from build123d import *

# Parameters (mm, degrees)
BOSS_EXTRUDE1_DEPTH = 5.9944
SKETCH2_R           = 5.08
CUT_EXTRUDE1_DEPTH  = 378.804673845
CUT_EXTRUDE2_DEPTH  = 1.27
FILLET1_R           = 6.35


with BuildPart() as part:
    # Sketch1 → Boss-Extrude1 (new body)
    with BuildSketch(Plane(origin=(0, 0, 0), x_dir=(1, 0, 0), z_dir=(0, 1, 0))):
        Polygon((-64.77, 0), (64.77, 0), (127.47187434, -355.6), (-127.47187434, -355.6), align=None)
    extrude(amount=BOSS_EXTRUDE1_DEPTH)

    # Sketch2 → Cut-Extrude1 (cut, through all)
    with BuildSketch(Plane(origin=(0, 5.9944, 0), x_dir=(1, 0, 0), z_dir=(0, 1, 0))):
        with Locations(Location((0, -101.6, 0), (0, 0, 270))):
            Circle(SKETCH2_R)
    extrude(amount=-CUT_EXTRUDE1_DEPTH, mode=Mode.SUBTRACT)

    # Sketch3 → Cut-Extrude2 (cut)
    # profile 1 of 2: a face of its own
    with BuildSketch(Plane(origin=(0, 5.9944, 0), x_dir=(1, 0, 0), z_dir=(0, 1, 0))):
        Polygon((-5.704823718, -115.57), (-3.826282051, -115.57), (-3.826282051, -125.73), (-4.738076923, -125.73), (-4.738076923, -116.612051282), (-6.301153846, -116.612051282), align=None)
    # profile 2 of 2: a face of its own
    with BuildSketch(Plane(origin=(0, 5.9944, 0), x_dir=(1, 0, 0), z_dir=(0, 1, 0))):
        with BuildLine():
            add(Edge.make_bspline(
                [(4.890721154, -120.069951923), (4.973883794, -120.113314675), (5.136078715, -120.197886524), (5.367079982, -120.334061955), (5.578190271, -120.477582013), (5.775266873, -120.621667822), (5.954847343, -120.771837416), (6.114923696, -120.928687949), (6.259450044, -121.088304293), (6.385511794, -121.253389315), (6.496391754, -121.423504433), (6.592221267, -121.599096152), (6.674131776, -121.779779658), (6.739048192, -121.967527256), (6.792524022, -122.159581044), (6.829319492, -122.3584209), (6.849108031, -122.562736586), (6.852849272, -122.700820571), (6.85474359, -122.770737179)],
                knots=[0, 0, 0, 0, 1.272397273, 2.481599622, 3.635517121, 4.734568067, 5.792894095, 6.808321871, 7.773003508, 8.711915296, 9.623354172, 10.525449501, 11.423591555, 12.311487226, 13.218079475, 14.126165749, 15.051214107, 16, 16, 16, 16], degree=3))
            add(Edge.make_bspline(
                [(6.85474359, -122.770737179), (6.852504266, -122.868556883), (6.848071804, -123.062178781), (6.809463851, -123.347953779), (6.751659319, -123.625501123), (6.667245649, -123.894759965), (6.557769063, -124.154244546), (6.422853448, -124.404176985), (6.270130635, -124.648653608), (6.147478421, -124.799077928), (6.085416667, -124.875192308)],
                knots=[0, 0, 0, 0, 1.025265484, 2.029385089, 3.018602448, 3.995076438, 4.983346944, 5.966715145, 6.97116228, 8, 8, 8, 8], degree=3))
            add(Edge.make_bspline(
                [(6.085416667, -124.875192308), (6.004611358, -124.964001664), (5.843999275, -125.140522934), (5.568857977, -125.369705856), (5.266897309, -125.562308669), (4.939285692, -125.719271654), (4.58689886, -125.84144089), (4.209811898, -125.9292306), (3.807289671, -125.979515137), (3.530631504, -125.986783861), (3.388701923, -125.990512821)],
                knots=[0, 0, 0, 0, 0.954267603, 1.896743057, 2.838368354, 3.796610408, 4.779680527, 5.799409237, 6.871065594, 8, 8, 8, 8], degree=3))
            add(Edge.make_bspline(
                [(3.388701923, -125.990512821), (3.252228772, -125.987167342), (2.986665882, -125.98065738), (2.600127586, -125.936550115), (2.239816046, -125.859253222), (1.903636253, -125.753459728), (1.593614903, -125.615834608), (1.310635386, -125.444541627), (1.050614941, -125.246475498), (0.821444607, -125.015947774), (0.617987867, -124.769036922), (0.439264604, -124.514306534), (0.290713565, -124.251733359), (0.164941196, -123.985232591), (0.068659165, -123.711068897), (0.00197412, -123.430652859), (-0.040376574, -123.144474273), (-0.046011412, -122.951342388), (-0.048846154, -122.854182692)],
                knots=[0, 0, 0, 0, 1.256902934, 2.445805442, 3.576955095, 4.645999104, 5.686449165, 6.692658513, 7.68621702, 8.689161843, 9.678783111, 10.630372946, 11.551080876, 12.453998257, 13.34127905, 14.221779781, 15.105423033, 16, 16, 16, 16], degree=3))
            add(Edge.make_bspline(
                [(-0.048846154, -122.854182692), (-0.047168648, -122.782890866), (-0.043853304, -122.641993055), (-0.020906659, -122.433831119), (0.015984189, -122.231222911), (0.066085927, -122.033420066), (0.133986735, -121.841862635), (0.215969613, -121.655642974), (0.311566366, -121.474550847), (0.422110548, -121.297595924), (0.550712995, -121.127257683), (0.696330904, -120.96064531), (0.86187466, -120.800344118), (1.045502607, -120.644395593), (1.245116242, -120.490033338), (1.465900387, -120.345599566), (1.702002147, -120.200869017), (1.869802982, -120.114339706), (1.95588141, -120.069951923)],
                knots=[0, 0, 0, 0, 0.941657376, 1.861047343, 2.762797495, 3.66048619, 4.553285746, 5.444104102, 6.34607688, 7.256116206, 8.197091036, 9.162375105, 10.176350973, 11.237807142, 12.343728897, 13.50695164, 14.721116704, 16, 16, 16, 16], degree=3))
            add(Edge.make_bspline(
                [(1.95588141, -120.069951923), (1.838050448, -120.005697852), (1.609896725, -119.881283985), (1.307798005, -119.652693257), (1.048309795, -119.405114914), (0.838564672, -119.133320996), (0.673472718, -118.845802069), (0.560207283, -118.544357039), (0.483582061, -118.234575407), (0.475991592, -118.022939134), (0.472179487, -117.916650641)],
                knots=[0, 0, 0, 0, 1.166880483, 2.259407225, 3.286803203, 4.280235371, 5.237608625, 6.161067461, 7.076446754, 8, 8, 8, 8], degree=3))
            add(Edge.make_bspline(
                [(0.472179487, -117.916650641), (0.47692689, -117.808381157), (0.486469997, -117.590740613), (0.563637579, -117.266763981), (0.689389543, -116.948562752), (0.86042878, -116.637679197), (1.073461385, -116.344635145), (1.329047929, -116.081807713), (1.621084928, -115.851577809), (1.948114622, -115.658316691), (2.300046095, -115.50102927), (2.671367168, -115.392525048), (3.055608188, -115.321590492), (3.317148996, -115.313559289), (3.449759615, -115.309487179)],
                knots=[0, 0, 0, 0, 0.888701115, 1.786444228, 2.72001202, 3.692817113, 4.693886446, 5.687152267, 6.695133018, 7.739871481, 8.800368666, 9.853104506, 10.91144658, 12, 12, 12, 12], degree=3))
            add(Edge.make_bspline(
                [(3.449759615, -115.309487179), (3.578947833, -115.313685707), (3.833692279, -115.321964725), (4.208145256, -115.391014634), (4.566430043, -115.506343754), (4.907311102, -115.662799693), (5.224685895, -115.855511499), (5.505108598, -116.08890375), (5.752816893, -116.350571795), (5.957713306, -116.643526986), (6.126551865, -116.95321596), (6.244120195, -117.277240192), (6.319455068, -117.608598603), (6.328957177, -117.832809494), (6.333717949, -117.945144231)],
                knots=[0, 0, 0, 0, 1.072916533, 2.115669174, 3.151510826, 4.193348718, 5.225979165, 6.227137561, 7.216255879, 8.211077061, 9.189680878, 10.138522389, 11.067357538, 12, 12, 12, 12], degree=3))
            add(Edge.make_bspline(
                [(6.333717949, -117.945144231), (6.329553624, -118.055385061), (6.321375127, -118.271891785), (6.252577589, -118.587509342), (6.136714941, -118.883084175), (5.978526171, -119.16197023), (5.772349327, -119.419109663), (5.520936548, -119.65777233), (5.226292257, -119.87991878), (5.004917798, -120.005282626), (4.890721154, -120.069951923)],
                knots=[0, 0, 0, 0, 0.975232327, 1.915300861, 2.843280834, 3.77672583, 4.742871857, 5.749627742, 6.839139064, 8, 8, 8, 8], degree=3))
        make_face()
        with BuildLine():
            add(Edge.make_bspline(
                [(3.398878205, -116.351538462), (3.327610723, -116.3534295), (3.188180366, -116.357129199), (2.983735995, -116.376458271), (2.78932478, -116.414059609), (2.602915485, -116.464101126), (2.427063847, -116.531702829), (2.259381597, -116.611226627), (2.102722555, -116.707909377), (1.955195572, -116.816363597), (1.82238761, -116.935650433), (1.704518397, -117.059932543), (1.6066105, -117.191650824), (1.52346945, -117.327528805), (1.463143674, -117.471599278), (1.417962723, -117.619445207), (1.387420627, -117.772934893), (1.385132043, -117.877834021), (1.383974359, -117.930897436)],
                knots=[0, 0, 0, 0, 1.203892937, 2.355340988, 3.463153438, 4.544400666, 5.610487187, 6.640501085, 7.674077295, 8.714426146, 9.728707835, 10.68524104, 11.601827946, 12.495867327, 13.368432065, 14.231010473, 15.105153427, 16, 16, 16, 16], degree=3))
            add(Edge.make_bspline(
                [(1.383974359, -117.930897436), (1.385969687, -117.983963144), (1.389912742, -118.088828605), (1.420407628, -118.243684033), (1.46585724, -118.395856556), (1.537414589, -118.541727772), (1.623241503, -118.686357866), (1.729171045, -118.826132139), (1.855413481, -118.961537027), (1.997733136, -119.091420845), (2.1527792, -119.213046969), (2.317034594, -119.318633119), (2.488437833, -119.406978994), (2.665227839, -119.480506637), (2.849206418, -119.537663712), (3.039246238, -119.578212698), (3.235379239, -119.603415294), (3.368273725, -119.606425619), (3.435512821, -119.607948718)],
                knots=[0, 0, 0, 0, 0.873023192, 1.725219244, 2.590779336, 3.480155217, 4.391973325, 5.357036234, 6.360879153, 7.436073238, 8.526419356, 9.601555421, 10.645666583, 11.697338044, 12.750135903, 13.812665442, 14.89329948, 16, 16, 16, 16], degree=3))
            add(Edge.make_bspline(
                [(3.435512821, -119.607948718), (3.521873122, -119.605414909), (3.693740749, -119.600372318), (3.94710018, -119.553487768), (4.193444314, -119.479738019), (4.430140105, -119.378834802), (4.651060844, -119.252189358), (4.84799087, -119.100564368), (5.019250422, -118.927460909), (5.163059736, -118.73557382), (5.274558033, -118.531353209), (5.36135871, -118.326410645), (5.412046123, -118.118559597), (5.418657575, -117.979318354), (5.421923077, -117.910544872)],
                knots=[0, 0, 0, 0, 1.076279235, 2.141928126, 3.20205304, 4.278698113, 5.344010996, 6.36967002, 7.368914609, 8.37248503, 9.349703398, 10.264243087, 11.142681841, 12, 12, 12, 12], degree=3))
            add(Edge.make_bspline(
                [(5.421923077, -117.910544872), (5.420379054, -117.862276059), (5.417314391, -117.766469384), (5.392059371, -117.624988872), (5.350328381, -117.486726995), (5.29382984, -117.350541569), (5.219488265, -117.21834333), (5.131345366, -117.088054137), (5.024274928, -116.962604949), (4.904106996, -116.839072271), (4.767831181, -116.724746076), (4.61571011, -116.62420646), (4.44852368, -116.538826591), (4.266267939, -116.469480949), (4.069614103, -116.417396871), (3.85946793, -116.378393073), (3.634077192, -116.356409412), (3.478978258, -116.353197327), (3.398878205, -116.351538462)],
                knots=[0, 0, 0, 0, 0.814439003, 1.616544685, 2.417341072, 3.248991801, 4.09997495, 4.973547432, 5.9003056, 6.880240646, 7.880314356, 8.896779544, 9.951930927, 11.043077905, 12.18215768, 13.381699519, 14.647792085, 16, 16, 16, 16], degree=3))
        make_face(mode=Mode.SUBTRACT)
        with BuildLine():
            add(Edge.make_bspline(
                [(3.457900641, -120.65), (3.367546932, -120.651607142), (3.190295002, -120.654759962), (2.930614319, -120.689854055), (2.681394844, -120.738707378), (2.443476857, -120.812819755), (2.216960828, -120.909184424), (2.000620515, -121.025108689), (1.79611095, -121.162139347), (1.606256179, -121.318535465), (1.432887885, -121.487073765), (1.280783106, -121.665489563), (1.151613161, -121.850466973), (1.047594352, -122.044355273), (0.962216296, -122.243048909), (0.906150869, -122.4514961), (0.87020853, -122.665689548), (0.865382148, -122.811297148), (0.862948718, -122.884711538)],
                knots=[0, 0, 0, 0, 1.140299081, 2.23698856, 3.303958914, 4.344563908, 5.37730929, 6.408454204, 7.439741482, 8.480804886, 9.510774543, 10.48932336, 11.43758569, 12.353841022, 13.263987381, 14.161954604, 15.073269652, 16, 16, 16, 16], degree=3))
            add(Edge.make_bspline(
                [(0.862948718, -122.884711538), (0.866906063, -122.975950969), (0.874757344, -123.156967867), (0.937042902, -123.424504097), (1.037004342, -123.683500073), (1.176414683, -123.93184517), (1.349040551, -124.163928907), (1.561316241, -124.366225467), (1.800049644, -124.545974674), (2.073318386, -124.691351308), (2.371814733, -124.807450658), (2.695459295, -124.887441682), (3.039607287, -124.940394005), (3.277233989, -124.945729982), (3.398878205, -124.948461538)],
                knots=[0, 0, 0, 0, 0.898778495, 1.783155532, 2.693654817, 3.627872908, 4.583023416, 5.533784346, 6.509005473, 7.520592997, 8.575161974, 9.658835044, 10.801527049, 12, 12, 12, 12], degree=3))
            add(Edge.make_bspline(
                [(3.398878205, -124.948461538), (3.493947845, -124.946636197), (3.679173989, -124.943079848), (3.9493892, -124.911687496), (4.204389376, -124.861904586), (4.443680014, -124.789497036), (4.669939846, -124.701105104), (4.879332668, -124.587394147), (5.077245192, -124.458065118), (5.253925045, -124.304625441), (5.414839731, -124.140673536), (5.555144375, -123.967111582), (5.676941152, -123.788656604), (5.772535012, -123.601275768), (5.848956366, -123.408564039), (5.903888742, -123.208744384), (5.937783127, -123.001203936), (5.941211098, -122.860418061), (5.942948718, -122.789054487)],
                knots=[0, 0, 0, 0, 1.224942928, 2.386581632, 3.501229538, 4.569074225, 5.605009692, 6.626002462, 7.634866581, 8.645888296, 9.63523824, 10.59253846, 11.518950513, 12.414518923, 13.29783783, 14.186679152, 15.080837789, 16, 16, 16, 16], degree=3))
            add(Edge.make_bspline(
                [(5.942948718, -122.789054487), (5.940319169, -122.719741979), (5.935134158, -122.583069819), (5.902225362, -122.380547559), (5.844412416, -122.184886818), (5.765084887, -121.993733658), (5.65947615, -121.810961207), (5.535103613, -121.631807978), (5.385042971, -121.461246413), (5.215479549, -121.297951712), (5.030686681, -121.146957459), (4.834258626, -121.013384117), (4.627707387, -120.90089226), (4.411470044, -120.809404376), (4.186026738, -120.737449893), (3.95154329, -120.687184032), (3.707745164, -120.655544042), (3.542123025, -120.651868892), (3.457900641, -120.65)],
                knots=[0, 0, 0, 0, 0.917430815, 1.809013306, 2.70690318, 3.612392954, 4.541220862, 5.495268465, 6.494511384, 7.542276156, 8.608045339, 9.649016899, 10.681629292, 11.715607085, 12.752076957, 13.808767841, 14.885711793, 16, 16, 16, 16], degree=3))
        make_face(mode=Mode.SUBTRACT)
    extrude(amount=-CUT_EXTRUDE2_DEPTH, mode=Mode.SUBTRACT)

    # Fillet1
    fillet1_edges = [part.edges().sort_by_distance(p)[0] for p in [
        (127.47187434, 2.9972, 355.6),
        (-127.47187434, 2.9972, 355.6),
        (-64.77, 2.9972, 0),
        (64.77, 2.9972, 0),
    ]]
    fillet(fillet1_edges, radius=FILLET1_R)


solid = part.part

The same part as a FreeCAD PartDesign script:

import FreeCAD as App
import Part
import Sketcher
Q = App.Units.Quantity


def edges_at(feature, points):
    """Names of the edges that pass closest to the given points."""
    edges = feature.Shape.Edges
    near = lambda p: min(range(len(edges)), key=lambda i: edges[i].distToShape(Part.Vertex(*p))[0])
    return sorted({f"Edge{near(p) + 1}" for p in points})

doc = App.newDocument("Part")
body = doc.addObject("PartDesign::Body", "Body")

sketch1 = body.newObject("Sketcher::SketchObject", "Sketch")
sketch1.AttachmentSupport = (doc.getObject("XZ_Plane"), [""])
sketch1.MapMode = "FlatFace"
sketch1.addGeometry(Part.LineSegment(App.Vector(65, 0, 0), App.Vector(-65, 0, 0)), False)
sketch1.addGeometry(Part.LineSegment(App.Vector(-65, 0, 0), App.Vector(-127, 356, 0)), False)
sketch1.addGeometry(Part.LineSegment(App.Vector(-127, 356, 0), App.Vector(127, 356, 0)), False)
sketch1.addGeometry(Part.LineSegment(App.Vector(127, 356, 0), App.Vector(65, 0, 0)), False)
sketch1.addConstraint(Sketcher.Constraint("Coincident", 0, 2, 1, 1))
sketch1.addConstraint(Sketcher.Constraint("Coincident", 1, 2, 2, 1))
sketch1.addConstraint(Sketcher.Constraint("Coincident", 2, 2, 3, 1))
sketch1.addConstraint(Sketcher.Constraint("Coincident", 3, 2, 0, 1))
sketch1.addConstraint(Sketcher.Constraint("Horizontal", 0))
sketch1.addConstraint(Sketcher.Constraint("Horizontal", 2))
sketch1.addConstraint(Sketcher.Constraint("Symmetric", 0, 2, 3, 2, -1, 1))
sketch1.addConstraint(Sketcher.Constraint("Equal", 1, 3))
sketch1.addConstraint(Sketcher.Constraint("DistanceX", 0, 2, 0, 1, Q("5.1 in")))
sketch1.addConstraint(Sketcher.Constraint("DistanceY", -1, 1, 1, 2, Q("14 in")))
sketch1.addConstraint(Sketcher.Constraint("Angle", 1, Q("100 deg")))
pad1 = body.newObject("PartDesign::Pad", "Pad")
pad1.Profile = sketch1
pad1.Length = Q("0.236 in")
pad1.Reversed = True

sketch2 = body.newObject("Sketcher::SketchObject", "Sketch001")
sketch2.AttachmentSupport = (doc.getObject("XZ_Plane"), [""])
sketch2.MapMode = "FlatFace"
sketch2.AttachmentOffset = App.Placement(App.Vector(0, 0, -0.236 * 25.4), App.Rotation())
sketch2.addGeometry(Part.Circle(App.Vector(0, 102, 0), App.Vector(0, 0, 1), 5), False)
sketch2.addConstraint(Sketcher.Constraint("PointOnObject", 0, 3, -2))
sketch2.addConstraint(Sketcher.Constraint("Diameter", 0, Q("0.4 in")))
sketch2.addConstraint(Sketcher.Constraint("DistanceY", -1, 1, 0, 3, Q("4 in")))
pocket1 = body.newObject("PartDesign::Pocket", "Pocket")
pocket1.Profile = sketch2
pocket1.Type = "ThroughAll"
pocket1.Reversed = True

sketch3 = body.newObject("Sketcher::SketchObject", "Sketch002")
sketch3.AttachmentSupport = (doc.getObject("XZ_Plane"), [""])
sketch3.MapMode = "FlatFace"
sketch3.AttachmentOffset = App.Placement(App.Vector(0, 0, -0.236 * 25.4), App.Rotation())
sketch3.addGeometry(Part.LineSegment(App.Vector(-3.826282, 115.57, 0), App.Vector(-5.704824, 115.57, 0)), False)
sketch3.addGeometry(Part.LineSegment(App.Vector(-5.704824, 115.57, 0), App.Vector(-6.301154, 116.612051, 0)), False)
sketch3.addGeometry(Part.LineSegment(App.Vector(-6.301154, 116.612051, 0), App.Vector(-4.738077, 116.612051, 0)), False)
sketch3.addGeometry(Part.LineSegment(App.Vector(-4.738077, 116.612051, 0), App.Vector(-4.738077, 125.73, 0)), False)
sketch3.addGeometry(Part.LineSegment(App.Vector(-4.738077, 125.73, 0), App.Vector(-3.826282, 125.73, 0)), False)
sketch3.addGeometry(Part.LineSegment(App.Vector(-3.826282, 125.73, 0), App.Vector(-3.826282, 115.57, 0)), False)
sketch3.addGeometry(Part.BSplineCurve([App.Vector(4.890721, 120.069952, 0), App.Vector(4.973884, 120.113315, 0), App.Vector(5.136079, 120.197887, 0), App.Vector(5.36708, 120.334062, 0), App.Vector(5.57819, 120.477582, 0), App.Vector(5.775267, 120.621668, 0), App.Vector(5.954847, 120.771837, 0), App.Vector(6.114924, 120.928688, 0), App.Vector(6.25945, 121.088304, 0), App.Vector(6.385512, 121.253389, 0), App.Vector(6.496392, 121.423504, 0), App.Vector(6.592221, 121.599096, 0), App.Vector(6.674132, 121.77978, 0), App.Vector(6.739048, 121.967527, 0), App.Vector(6.792524, 122.159581, 0), App.Vector(6.829319, 122.358421, 0), App.Vector(6.849108, 122.562737, 0), App.Vector(6.852849, 122.700821, 0), App.Vector(6.854744, 122.770737, 0)], [4, 1, 1, 1, 1, 1, 1, 1, 1, 1, 1, 1, 1, 1, 1, 1, 4], [0, 1.272397273, 2.481599622, 3.635517121, 4.734568067, 5.792894095, 6.808321871, 7.773003508, 8.711915296, 9.623354172, 10.525449501, 11.423591555, 12.311487226, 13.218079475, 14.126165749, 15.051214107, 16], False, 3, [1, 1, 1, 1, 1, 1, 1, 1, 1, 1, 1, 1, 1, 1, 1, 1, 1, 1, 1], False), False)
sketch3.addGeometry(Part.BSplineCurve([App.Vector(6.333718, 117.945144, 0), App.Vector(6.329554, 118.055385, 0), App.Vector(6.321375, 118.271892, 0), App.Vector(6.252578, 118.587509, 0), App.Vector(6.136715, 118.883084, 0), App.Vector(5.978526, 119.16197, 0), App.Vector(5.772349, 119.41911, 0), App.Vector(5.520937, 119.657772, 0), App.Vector(5.226292, 119.879919, 0), App.Vector(5.004918, 120.005283, 0), App.Vector(4.890721, 120.069952, 0)], [4, 1, 1, 1, 1, 1, 1, 1, 4], [0, 0.975232327, 1.915300861, 2.843280834, 3.77672583, 4.742871857, 5.749627742, 6.839139064, 8], False, 3, [1, 1, 1, 1, 1, 1, 1, 1, 1, 1, 1], False), False)
sketch3.addGeometry(Part.BSplineCurve([App.Vector(3.44976, 115.309487, 0), App.Vector(3.578948, 115.313686, 0), App.Vector(3.833692, 115.321965, 0), App.Vector(4.208145, 115.391015, 0), App.Vector(4.56643, 115.506344, 0), App.Vector(4.907311, 115.6628, 0), App.Vector(5.224686, 115.855511, 0), App.Vector(5.505109, 116.088904, 0), App.Vector(5.752817, 116.350572, 0), App.Vector(5.957713, 116.643527, 0), App.Vector(6.126552, 116.953216, 0), App.Vector(6.24412, 117.27724, 0), App.Vector(6.319455, 117.608599, 0), App.Vector(6.328957, 117.832809, 0), App.Vector(6.333718, 117.945144, 0)], [4, 1, 1, 1, 1, 1, 1, 1, 1, 1, 1, 1, 4], [0, 1.072916533, 2.115669174, 3.151510826, 4.193348718, 5.225979165, 6.227137561, 7.216255879, 8.211077061, 9.189680878, 10.138522389, 11.067357538, 12], False, 3, [1, 1, 1, 1, 1, 1, 1, 1, 1, 1, 1, 1, 1, 1, 1], False), False)
sketch3.addGeometry(Part.BSplineCurve([App.Vector(0.472179, 117.916651, 0), App.Vector(0.476927, 117.808381, 0), App.Vector(0.48647, 117.590741, 0), App.Vector(0.563638, 117.266764, 0), App.Vector(0.68939, 116.948563, 0), App.Vector(0.860429, 116.637679, 0), App.Vector(1.073461, 116.344635, 0), App.Vector(1.329048, 116.081808, 0), App.Vector(1.621085, 115.851578, 0), App.Vector(1.948115, 115.658317, 0), App.Vector(2.300046, 115.501029, 0), App.Vector(2.671367, 115.392525, 0), App.Vector(3.055608, 115.32159, 0), App.Vector(3.317149, 115.313559, 0), App.Vector(3.44976, 115.309487, 0)], [4, 1, 1, 1, 1, 1, 1, 1, 1, 1, 1, 1, 4], [0, 0.888701115, 1.786444228, 2.72001202, 3.692817113, 4.693886446, 5.687152267, 6.695133018, 7.739871481, 8.800368666, 9.853104506, 10.91144658, 12], False, 3, [1, 1, 1, 1, 1, 1, 1, 1, 1, 1, 1, 1, 1, 1, 1], False), False)
sketch3.addGeometry(Part.BSplineCurve([App.Vector(1.955881, 120.069952, 0), App.Vector(1.83805, 120.005698, 0), App.Vector(1.609897, 119.881284, 0), App.Vector(1.307798, 119.652693, 0), App.Vector(1.04831, 119.405115, 0), App.Vector(0.838565, 119.133321, 0), App.Vector(0.673473, 118.845802, 0), App.Vector(0.560207, 118.544357, 0), App.Vector(0.483582, 118.234575, 0), App.Vector(0.475992, 118.022939, 0), App.Vector(0.472179, 117.916651, 0)], [4, 1, 1, 1, 1, 1, 1, 1, 4], [0, 1.166880483, 2.259407225, 3.286803203, 4.280235371, 5.237608625, 6.161067461, 7.076446754, 8], False, 3, [1, 1, 1, 1, 1, 1, 1, 1, 1, 1, 1], False), False)
sketch3.addGeometry(Part.BSplineCurve([App.Vector(-0.048846, 122.854183, 0), App.Vector(-0.047169, 122.782891, 0), App.Vector(-0.043853, 122.641993, 0), App.Vector(-0.020907, 122.433831, 0), App.Vector(0.015984, 122.231223, 0), App.Vector(0.066086, 122.03342, 0), App.Vector(0.133987, 121.841863, 0), App.Vector(0.21597, 121.655643, 0), App.Vector(0.311566, 121.474551, 0), App.Vector(0.422111, 121.297596, 0), App.Vector(0.550713, 121.127258, 0), App.Vector(0.696331, 120.960645, 0), App.Vector(0.861875, 120.800344, 0), App.Vector(1.045503, 120.644396, 0), App.Vector(1.245116, 120.490033, 0), App.Vector(1.4659, 120.3456, 0), App.Vector(1.702002, 120.200869, 0), App.Vector(1.869803, 120.11434, 0), App.Vector(1.955881, 120.069952, 0)], [4, 1, 1, 1, 1, 1, 1, 1, 1, 1, 1, 1, 1, 1, 1, 1, 4], [0, 0.941657376, 1.861047343, 2.762797495, 3.66048619, 4.553285746, 5.444104102, 6.34607688, 7.256116206, 8.197091036, 9.162375105, 10.176350973, 11.237807142, 12.343728897, 13.50695164, 14.721116704, 16], False, 3, [1, 1, 1, 1, 1, 1, 1, 1, 1, 1, 1, 1, 1, 1, 1, 1, 1, 1, 1], False), False)
sketch3.addGeometry(Part.BSplineCurve([App.Vector(3.388702, 125.990513, 0), App.Vector(3.252229, 125.987167, 0), App.Vector(2.986666, 125.980657, 0), App.Vector(2.600128, 125.93655, 0), App.Vector(2.239816, 125.859253, 0), App.Vector(1.903636, 125.75346, 0), App.Vector(1.593615, 125.615835, 0), App.Vector(1.310635, 125.444542, 0), App.Vector(1.050615, 125.246475, 0), App.Vector(0.821445, 125.015948, 0), App.Vector(0.617988, 124.769037, 0), App.Vector(0.439265, 124.514307, 0), App.Vector(0.290714, 124.251733, 0), App.Vector(0.164941, 123.985233, 0), App.Vector(0.068659, 123.711069, 0), App.Vector(0.001974, 123.430653, 0), App.Vector(-0.040377, 123.144474, 0), App.Vector(-0.046011, 122.951342, 0), App.Vector(-0.048846, 122.854183, 0)], [4, 1, 1, 1, 1, 1, 1, 1, 1, 1, 1, 1, 1, 1, 1, 1, 4], [0, 1.256902934, 2.445805442, 3.576955095, 4.645999104, 5.686449165, 6.692658513, 7.68621702, 8.689161843, 9.678783111, 10.630372946, 11.551080876, 12.453998257, 13.34127905, 14.221779781, 15.105423033, 16], False, 3, [1, 1, 1, 1, 1, 1, 1, 1, 1, 1, 1, 1, 1, 1, 1, 1, 1, 1, 1], False), False)
sketch3.addGeometry(Part.BSplineCurve([App.Vector(6.085417, 124.875192, 0), App.Vector(6.004611, 124.964002, 0), App.Vector(5.843999, 125.140523, 0), App.Vector(5.568858, 125.369706, 0), App.Vector(5.266897, 125.562309, 0), App.Vector(4.939286, 125.719272, 0), App.Vector(4.586899, 125.841441, 0), App.Vector(4.209812, 125.929231, 0), App.Vector(3.80729, 125.979515, 0), App.Vector(3.530632, 125.986784, 0), App.Vector(3.388702, 125.990513, 0)], [4, 1, 1, 1, 1, 1, 1, 1, 4], [0, 0.954267603, 1.896743057, 2.838368354, 3.796610408, 4.779680527, 5.799409237, 6.871065594, 8], False, 3, [1, 1, 1, 1, 1, 1, 1, 1, 1, 1, 1], False), False)
sketch3.addGeometry(Part.BSplineCurve([App.Vector(6.854744, 122.770737, 0), App.Vector(6.852504, 122.868557, 0), App.Vector(6.848072, 123.062179, 0), App.Vector(6.809464, 123.347954, 0), App.Vector(6.751659, 123.625501, 0), App.Vector(6.667246, 123.89476, 0), App.Vector(6.557769, 124.154245, 0), App.Vector(6.422853, 124.404177, 0), App.Vector(6.270131, 124.648654, 0), App.Vector(6.147478, 124.799078, 0), App.Vector(6.085417, 124.875192, 0)], [4, 1, 1, 1, 1, 1, 1, 1, 4], [0, 1.025265484, 2.029385089, 3.018602448, 3.995076438, 4.983346944, 5.966715145, 6.97116228, 8], False, 3, [1, 1, 1, 1, 1, 1, 1, 1, 1, 1, 1], False), False)
sketch3.addGeometry(Part.BSplineCurve([App.Vector(5.942949, 122.789054, 0), App.Vector(5.940319, 122.719742, 0), App.Vector(5.935134, 122.58307, 0), App.Vector(5.902225, 122.380548, 0), App.Vector(5.844412, 122.184887, 0), App.Vector(5.765085, 121.993734, 0), App.Vector(5.659476, 121.810961, 0), App.Vector(5.535104, 121.631808, 0), App.Vector(5.385043, 121.461246, 0), App.Vector(5.21548, 121.297952, 0), App.Vector(5.030687, 121.146957, 0), App.Vector(4.834259, 121.013384, 0), App.Vector(4.627707, 120.900892, 0), App.Vector(4.41147, 120.809404, 0), App.Vector(4.186027, 120.73745, 0), App.Vector(3.951543, 120.687184, 0), App.Vector(3.707745, 120.655544, 0), App.Vector(3.542123, 120.651869, 0), App.Vector(3.457901, 120.65, 0)], [4, 1, 1, 1, 1, 1, 1, 1, 1, 1, 1, 1, 1, 1, 1, 1, 4], [0, 0.917430815, 1.809013306, 2.70690318, 3.612392954, 4.541220862, 5.495268465, 6.494511384, 7.542276156, 8.608045339, 9.649016899, 10.681629292, 11.715607085, 12.752076957, 13.808767841, 14.885711793, 16], False, 3, [1, 1, 1, 1, 1, 1, 1, 1, 1, 1, 1, 1, 1, 1, 1, 1, 1, 1, 1], False), False)
sketch3.addGeometry(Part.BSplineCurve([App.Vector(3.398878, 124.948462, 0), App.Vector(3.493948, 124.946636, 0), App.Vector(3.679174, 124.94308, 0), App.Vector(3.949389, 124.911687, 0), App.Vector(4.204389, 124.861905, 0), App.Vector(4.44368, 124.789497, 0), App.Vector(4.66994, 124.701105, 0), App.Vector(4.879333, 124.587394, 0), App.Vector(5.077245, 124.458065, 0), App.Vector(5.253925, 124.304625, 0), App.Vector(5.41484, 124.140674, 0), App.Vector(5.555144, 123.967112, 0), App.Vector(5.676941, 123.788657, 0), App.Vector(5.772535, 123.601276, 0), App.Vector(5.848956, 123.408564, 0), App.Vector(5.903889, 123.208744, 0), App.Vector(5.937783, 123.001204, 0), App.Vector(5.941211, 122.860418, 0), App.Vector(5.942949, 122.789054, 0)], [4, 1, 1, 1, 1, 1, 1, 1, 1, 1, 1, 1, 1, 1, 1, 1, 4], [0, 1.224942928, 2.386581632, 3.501229538, 4.569074225, 5.605009692, 6.626002462, 7.634866581, 8.645888296, 9.63523824, 10.59253846, 11.518950513, 12.414518923, 13.29783783, 14.186679152, 15.080837789, 16], False, 3, [1, 1, 1, 1, 1, 1, 1, 1, 1, 1, 1, 1, 1, 1, 1, 1, 1, 1, 1], False), False)
sketch3.addGeometry(Part.BSplineCurve([App.Vector(0.862949, 122.884712, 0), App.Vector(0.866906, 122.975951, 0), App.Vector(0.874757, 123.156968, 0), App.Vector(0.937043, 123.424504, 0), App.Vector(1.037004, 123.6835, 0), App.Vector(1.176415, 123.931845, 0), App.Vector(1.349041, 124.163929, 0), App.Vector(1.561316, 124.366225, 0), App.Vector(1.80005, 124.545975, 0), App.Vector(2.073318, 124.691351, 0), App.Vector(2.371815, 124.807451, 0), App.Vector(2.695459, 124.887442, 0), App.Vector(3.039607, 124.940394, 0), App.Vector(3.277234, 124.94573, 0), App.Vector(3.398878, 124.948462, 0)], [4, 1, 1, 1, 1, 1, 1, 1, 1, 1, 1, 1, 4], [0, 0.898778495, 1.783155532, 2.693654817, 3.627872908, 4.583023416, 5.533784346, 6.509005473, 7.520592997, 8.575161974, 9.658835044, 10.801527049, 12], False, 3, [1, 1, 1, 1, 1, 1, 1, 1, 1, 1, 1, 1, 1, 1, 1], False), False)
sketch3.addGeometry(Part.BSplineCurve([App.Vector(3.457901, 120.65, 0), App.Vector(3.367547, 120.651607, 0), App.Vector(3.190295, 120.65476, 0), App.Vector(2.930614, 120.689854, 0), App.Vector(2.681395, 120.738707, 0), App.Vector(2.443477, 120.81282, 0), App.Vector(2.216961, 120.909184, 0), App.Vector(2.000621, 121.025109, 0), App.Vector(1.796111, 121.162139, 0), App.Vector(1.606256, 121.318535, 0), App.Vector(1.432888, 121.487074, 0), App.Vector(1.280783, 121.66549, 0), App.Vector(1.151613, 121.850467, 0), App.Vector(1.047594, 122.044355, 0), App.Vector(0.962216, 122.243049, 0), App.Vector(0.906151, 122.451496, 0), App.Vector(0.870209, 122.66569, 0), App.Vector(0.865382, 122.811297, 0), App.Vector(0.862949, 122.884712, 0)], [4, 1, 1, 1, 1, 1, 1, 1, 1, 1, 1, 1, 1, 1, 1, 1, 4], [0, 1.140299081, 2.23698856, 3.303958914, 4.344563908, 5.37730929, 6.408454204, 7.439741482, 8.480804886, 9.510774543, 10.48932336, 11.43758569, 12.353841022, 13.263987381, 14.161954604, 15.073269652, 16], False, 3, [1, 1, 1, 1, 1, 1, 1, 1, 1, 1, 1, 1, 1, 1, 1, 1, 1, 1, 1], False), False)
sketch3.addGeometry(Part.BSplineCurve([App.Vector(5.421923, 117.910545, 0), App.Vector(5.420379, 117.862276, 0), App.Vector(5.417314, 117.766469, 0), App.Vector(5.392059, 117.624989, 0), App.Vector(5.350328, 117.486727, 0), App.Vector(5.29383, 117.350542, 0), App.Vector(5.219488, 117.218343, 0), App.Vector(5.131345, 117.088054, 0), App.Vector(5.024275, 116.962605, 0), App.Vector(4.904107, 116.839072, 0), App.Vector(4.767831, 116.724746, 0), App.Vector(4.61571, 116.624206, 0), App.Vector(4.448524, 116.538827, 0), App.Vector(4.266268, 116.469481, 0), App.Vector(4.069614, 116.417397, 0), App.Vector(3.859468, 116.378393, 0), App.Vector(3.634077, 116.356409, 0), App.Vector(3.478978, 116.353197, 0), App.Vector(3.398878, 116.351538, 0)], [4, 1, 1, 1, 1, 1, 1, 1, 1, 1, 1, 1, 1, 1, 1, 1, 4], [0, 0.814439003, 1.616544685, 2.417341072, 3.248991801, 4.09997495, 4.973547432, 5.9003056, 6.880240646, 7.880314356, 8.896779544, 9.951930927, 11.043077905, 12.18215768, 13.381699519, 14.647792085, 16], False, 3, [1, 1, 1, 1, 1, 1, 1, 1, 1, 1, 1, 1, 1, 1, 1, 1, 1, 1, 1], False), False)
sketch3.addGeometry(Part.BSplineCurve([App.Vector(3.435513, 119.607949, 0), App.Vector(3.521873, 119.605415, 0), App.Vector(3.693741, 119.600372, 0), App.Vector(3.9471, 119.553488, 0), App.Vector(4.193444, 119.479738, 0), App.Vector(4.43014, 119.378835, 0), App.Vector(4.651061, 119.252189, 0), App.Vector(4.847991, 119.100564, 0), App.Vector(5.01925, 118.927461, 0), App.Vector(5.16306, 118.735574, 0), App.Vector(5.274558, 118.531353, 0), App.Vector(5.361359, 118.326411, 0), App.Vector(5.412046, 118.11856, 0), App.Vector(5.418658, 117.979318, 0), App.Vector(5.421923, 117.910545, 0)], [4, 1, 1, 1, 1, 1, 1, 1, 1, 1, 1, 1, 4], [0, 1.076279235, 2.141928126, 3.20205304, 4.278698113, 5.344010996, 6.36967002, 7.368914609, 8.37248503, 9.349703398, 10.264243087, 11.142681841, 12], False, 3, [1, 1, 1, 1, 1, 1, 1, 1, 1, 1, 1, 1, 1, 1, 1], False), False)
sketch3.addGeometry(Part.BSplineCurve([App.Vector(1.383974, 117.930897, 0), App.Vector(1.38597, 117.983963, 0), App.Vector(1.389913, 118.088829, 0), App.Vector(1.420408, 118.243684, 0), App.Vector(1.465857, 118.395857, 0), App.Vector(1.537415, 118.541728, 0), App.Vector(1.623242, 118.686358, 0), App.Vector(1.729171, 118.826132, 0), App.Vector(1.855413, 118.961537, 0), App.Vector(1.997733, 119.091421, 0), App.Vector(2.152779, 119.213047, 0), App.Vector(2.317035, 119.318633, 0), App.Vector(2.488438, 119.406979, 0), App.Vector(2.665228, 119.480507, 0), App.Vector(2.849206, 119.537664, 0), App.Vector(3.039246, 119.578213, 0), App.Vector(3.235379, 119.603415, 0), App.Vector(3.368274, 119.606426, 0), App.Vector(3.435513, 119.607949, 0)], [4, 1, 1, 1, 1, 1, 1, 1, 1, 1, 1, 1, 1, 1, 1, 1, 4], [0, 0.873023192, 1.725219244, 2.590779336, 3.480155217, 4.391973325, 5.357036234, 6.360879153, 7.436073238, 8.526419356, 9.601555421, 10.645666583, 11.697338044, 12.750135903, 13.812665442, 14.89329948, 16], False, 3, [1, 1, 1, 1, 1, 1, 1, 1, 1, 1, 1, 1, 1, 1, 1, 1, 1, 1, 1], False), False)
sketch3.addGeometry(Part.BSplineCurve([App.Vector(3.398878, 116.351538, 0), App.Vector(3.327611, 116.35343, 0), App.Vector(3.18818, 116.357129, 0), App.Vector(2.983736, 116.376458, 0), App.Vector(2.789325, 116.41406, 0), App.Vector(2.602915, 116.464101, 0), App.Vector(2.427064, 116.531703, 0), App.Vector(2.259382, 116.611227, 0), App.Vector(2.102723, 116.707909, 0), App.Vector(1.955196, 116.816364, 0), App.Vector(1.822388, 116.93565, 0), App.Vector(1.704518, 117.059933, 0), App.Vector(1.60661, 117.191651, 0), App.Vector(1.523469, 117.327529, 0), App.Vector(1.463144, 117.471599, 0), App.Vector(1.417963, 117.619445, 0), App.Vector(1.387421, 117.772935, 0), App.Vector(1.385132, 117.877834, 0), App.Vector(1.383974, 117.930897, 0)], [4, 1, 1, 1, 1, 1, 1, 1, 1, 1, 1, 1, 1, 1, 1, 1, 4], [0, 1.203892937, 2.355340988, 3.463153438, 4.544400666, 5.610487187, 6.640501085, 7.674077295, 8.714426146, 9.728707835, 10.68524104, 11.601827946, 12.495867327, 13.368432065, 14.231010473, 15.105153427, 16], False, 3, [1, 1, 1, 1, 1, 1, 1, 1, 1, 1, 1, 1, 1, 1, 1, 1, 1, 1, 1], False), False)
sketch3.addConstraint(Sketcher.Constraint("Block", 6))
sketch3.addConstraint(Sketcher.Constraint("Block", 7))
sketch3.addConstraint(Sketcher.Constraint("Block", 8))
sketch3.addConstraint(Sketcher.Constraint("Block", 9))
sketch3.addConstraint(Sketcher.Constraint("Block", 10))
sketch3.addConstraint(Sketcher.Constraint("Block", 11))
sketch3.addConstraint(Sketcher.Constraint("Block", 12))
sketch3.addConstraint(Sketcher.Constraint("Block", 13))
sketch3.addConstraint(Sketcher.Constraint("Block", 14))
sketch3.addConstraint(Sketcher.Constraint("Block", 15))
sketch3.addConstraint(Sketcher.Constraint("Block", 16))
sketch3.addConstraint(Sketcher.Constraint("Block", 17))
sketch3.addConstraint(Sketcher.Constraint("Block", 18))
sketch3.addConstraint(Sketcher.Constraint("Block", 19))
sketch3.addConstraint(Sketcher.Constraint("Block", 20))
sketch3.addConstraint(Sketcher.Constraint("Block", 21))
sketch3.addConstraint(Sketcher.Constraint("Block", 22))
sketch3.addConstraint(Sketcher.Constraint("Coincident", 0, 2, 1, 1))
sketch3.addConstraint(Sketcher.Constraint("Coincident", 1, 2, 2, 1))
sketch3.addConstraint(Sketcher.Constraint("Coincident", 2, 2, 3, 1))
sketch3.addConstraint(Sketcher.Constraint("Coincident", 3, 2, 4, 1))
sketch3.addConstraint(Sketcher.Constraint("Coincident", 4, 2, 5, 1))
sketch3.addConstraint(Sketcher.Constraint("Coincident", 5, 2, 0, 1))
sketch3.addConstraint(Sketcher.Constraint("Horizontal", 0))
sketch3.addConstraint(Sketcher.Constraint("Horizontal", 2))
sketch3.addConstraint(Sketcher.Constraint("Vertical", 3))
sketch3.addConstraint(Sketcher.Constraint("Horizontal", 4))
sketch3.addConstraint(Sketcher.Constraint("Vertical", 5))
sketch3.addConstraint(Sketcher.Constraint("DistanceY", 5, 2, 5, 1, Q("0.4 in")))
sketch3.addConstraint(Sketcher.Constraint("DistanceY", -1, 1, 0, 2, Q("4.55 in")))
sketch3.addConstraint(Sketcher.Constraint("DistanceX", 0, 2, 0, 1, Q("1.878542 mm")))
sketch3.addConstraint(Sketcher.Constraint("DistanceY", 3, 1, 3, 2, Q("9.117949 mm")))
sketch3.addConstraint(Sketcher.Constraint("DistanceX", 2, 1, 2, 2, Q("1.563077 mm")))
sketch3.addConstraint(Sketcher.Constraint("DistanceX", 4, 1, 4, 2, Q("0.911795 mm")))
sketch3.addConstraint(Sketcher.Constraint("DistanceX", 0, 2, -1, 1, Q("5.704824 mm")))
pocket2 = body.newObject("PartDesign::Pocket", "Pocket001")
pocket2.Profile = sketch3
pocket2.Length = Q("0.05 in")
pocket2.Reversed = True
doc.recompute()

fillet = body.newObject("PartDesign::Fillet", "Fillet")
fillet.Base = (pocket2, edges_at(pocket2, [
    (127.472, 2.997, 355.6),
    (-127.472, 2.997, 355.6),
    (-64.77, 2.997, 0),
    (64.77, 2.997, 0),
]))
fillet.Radius = Q("0.25 in")

doc.recompute()
